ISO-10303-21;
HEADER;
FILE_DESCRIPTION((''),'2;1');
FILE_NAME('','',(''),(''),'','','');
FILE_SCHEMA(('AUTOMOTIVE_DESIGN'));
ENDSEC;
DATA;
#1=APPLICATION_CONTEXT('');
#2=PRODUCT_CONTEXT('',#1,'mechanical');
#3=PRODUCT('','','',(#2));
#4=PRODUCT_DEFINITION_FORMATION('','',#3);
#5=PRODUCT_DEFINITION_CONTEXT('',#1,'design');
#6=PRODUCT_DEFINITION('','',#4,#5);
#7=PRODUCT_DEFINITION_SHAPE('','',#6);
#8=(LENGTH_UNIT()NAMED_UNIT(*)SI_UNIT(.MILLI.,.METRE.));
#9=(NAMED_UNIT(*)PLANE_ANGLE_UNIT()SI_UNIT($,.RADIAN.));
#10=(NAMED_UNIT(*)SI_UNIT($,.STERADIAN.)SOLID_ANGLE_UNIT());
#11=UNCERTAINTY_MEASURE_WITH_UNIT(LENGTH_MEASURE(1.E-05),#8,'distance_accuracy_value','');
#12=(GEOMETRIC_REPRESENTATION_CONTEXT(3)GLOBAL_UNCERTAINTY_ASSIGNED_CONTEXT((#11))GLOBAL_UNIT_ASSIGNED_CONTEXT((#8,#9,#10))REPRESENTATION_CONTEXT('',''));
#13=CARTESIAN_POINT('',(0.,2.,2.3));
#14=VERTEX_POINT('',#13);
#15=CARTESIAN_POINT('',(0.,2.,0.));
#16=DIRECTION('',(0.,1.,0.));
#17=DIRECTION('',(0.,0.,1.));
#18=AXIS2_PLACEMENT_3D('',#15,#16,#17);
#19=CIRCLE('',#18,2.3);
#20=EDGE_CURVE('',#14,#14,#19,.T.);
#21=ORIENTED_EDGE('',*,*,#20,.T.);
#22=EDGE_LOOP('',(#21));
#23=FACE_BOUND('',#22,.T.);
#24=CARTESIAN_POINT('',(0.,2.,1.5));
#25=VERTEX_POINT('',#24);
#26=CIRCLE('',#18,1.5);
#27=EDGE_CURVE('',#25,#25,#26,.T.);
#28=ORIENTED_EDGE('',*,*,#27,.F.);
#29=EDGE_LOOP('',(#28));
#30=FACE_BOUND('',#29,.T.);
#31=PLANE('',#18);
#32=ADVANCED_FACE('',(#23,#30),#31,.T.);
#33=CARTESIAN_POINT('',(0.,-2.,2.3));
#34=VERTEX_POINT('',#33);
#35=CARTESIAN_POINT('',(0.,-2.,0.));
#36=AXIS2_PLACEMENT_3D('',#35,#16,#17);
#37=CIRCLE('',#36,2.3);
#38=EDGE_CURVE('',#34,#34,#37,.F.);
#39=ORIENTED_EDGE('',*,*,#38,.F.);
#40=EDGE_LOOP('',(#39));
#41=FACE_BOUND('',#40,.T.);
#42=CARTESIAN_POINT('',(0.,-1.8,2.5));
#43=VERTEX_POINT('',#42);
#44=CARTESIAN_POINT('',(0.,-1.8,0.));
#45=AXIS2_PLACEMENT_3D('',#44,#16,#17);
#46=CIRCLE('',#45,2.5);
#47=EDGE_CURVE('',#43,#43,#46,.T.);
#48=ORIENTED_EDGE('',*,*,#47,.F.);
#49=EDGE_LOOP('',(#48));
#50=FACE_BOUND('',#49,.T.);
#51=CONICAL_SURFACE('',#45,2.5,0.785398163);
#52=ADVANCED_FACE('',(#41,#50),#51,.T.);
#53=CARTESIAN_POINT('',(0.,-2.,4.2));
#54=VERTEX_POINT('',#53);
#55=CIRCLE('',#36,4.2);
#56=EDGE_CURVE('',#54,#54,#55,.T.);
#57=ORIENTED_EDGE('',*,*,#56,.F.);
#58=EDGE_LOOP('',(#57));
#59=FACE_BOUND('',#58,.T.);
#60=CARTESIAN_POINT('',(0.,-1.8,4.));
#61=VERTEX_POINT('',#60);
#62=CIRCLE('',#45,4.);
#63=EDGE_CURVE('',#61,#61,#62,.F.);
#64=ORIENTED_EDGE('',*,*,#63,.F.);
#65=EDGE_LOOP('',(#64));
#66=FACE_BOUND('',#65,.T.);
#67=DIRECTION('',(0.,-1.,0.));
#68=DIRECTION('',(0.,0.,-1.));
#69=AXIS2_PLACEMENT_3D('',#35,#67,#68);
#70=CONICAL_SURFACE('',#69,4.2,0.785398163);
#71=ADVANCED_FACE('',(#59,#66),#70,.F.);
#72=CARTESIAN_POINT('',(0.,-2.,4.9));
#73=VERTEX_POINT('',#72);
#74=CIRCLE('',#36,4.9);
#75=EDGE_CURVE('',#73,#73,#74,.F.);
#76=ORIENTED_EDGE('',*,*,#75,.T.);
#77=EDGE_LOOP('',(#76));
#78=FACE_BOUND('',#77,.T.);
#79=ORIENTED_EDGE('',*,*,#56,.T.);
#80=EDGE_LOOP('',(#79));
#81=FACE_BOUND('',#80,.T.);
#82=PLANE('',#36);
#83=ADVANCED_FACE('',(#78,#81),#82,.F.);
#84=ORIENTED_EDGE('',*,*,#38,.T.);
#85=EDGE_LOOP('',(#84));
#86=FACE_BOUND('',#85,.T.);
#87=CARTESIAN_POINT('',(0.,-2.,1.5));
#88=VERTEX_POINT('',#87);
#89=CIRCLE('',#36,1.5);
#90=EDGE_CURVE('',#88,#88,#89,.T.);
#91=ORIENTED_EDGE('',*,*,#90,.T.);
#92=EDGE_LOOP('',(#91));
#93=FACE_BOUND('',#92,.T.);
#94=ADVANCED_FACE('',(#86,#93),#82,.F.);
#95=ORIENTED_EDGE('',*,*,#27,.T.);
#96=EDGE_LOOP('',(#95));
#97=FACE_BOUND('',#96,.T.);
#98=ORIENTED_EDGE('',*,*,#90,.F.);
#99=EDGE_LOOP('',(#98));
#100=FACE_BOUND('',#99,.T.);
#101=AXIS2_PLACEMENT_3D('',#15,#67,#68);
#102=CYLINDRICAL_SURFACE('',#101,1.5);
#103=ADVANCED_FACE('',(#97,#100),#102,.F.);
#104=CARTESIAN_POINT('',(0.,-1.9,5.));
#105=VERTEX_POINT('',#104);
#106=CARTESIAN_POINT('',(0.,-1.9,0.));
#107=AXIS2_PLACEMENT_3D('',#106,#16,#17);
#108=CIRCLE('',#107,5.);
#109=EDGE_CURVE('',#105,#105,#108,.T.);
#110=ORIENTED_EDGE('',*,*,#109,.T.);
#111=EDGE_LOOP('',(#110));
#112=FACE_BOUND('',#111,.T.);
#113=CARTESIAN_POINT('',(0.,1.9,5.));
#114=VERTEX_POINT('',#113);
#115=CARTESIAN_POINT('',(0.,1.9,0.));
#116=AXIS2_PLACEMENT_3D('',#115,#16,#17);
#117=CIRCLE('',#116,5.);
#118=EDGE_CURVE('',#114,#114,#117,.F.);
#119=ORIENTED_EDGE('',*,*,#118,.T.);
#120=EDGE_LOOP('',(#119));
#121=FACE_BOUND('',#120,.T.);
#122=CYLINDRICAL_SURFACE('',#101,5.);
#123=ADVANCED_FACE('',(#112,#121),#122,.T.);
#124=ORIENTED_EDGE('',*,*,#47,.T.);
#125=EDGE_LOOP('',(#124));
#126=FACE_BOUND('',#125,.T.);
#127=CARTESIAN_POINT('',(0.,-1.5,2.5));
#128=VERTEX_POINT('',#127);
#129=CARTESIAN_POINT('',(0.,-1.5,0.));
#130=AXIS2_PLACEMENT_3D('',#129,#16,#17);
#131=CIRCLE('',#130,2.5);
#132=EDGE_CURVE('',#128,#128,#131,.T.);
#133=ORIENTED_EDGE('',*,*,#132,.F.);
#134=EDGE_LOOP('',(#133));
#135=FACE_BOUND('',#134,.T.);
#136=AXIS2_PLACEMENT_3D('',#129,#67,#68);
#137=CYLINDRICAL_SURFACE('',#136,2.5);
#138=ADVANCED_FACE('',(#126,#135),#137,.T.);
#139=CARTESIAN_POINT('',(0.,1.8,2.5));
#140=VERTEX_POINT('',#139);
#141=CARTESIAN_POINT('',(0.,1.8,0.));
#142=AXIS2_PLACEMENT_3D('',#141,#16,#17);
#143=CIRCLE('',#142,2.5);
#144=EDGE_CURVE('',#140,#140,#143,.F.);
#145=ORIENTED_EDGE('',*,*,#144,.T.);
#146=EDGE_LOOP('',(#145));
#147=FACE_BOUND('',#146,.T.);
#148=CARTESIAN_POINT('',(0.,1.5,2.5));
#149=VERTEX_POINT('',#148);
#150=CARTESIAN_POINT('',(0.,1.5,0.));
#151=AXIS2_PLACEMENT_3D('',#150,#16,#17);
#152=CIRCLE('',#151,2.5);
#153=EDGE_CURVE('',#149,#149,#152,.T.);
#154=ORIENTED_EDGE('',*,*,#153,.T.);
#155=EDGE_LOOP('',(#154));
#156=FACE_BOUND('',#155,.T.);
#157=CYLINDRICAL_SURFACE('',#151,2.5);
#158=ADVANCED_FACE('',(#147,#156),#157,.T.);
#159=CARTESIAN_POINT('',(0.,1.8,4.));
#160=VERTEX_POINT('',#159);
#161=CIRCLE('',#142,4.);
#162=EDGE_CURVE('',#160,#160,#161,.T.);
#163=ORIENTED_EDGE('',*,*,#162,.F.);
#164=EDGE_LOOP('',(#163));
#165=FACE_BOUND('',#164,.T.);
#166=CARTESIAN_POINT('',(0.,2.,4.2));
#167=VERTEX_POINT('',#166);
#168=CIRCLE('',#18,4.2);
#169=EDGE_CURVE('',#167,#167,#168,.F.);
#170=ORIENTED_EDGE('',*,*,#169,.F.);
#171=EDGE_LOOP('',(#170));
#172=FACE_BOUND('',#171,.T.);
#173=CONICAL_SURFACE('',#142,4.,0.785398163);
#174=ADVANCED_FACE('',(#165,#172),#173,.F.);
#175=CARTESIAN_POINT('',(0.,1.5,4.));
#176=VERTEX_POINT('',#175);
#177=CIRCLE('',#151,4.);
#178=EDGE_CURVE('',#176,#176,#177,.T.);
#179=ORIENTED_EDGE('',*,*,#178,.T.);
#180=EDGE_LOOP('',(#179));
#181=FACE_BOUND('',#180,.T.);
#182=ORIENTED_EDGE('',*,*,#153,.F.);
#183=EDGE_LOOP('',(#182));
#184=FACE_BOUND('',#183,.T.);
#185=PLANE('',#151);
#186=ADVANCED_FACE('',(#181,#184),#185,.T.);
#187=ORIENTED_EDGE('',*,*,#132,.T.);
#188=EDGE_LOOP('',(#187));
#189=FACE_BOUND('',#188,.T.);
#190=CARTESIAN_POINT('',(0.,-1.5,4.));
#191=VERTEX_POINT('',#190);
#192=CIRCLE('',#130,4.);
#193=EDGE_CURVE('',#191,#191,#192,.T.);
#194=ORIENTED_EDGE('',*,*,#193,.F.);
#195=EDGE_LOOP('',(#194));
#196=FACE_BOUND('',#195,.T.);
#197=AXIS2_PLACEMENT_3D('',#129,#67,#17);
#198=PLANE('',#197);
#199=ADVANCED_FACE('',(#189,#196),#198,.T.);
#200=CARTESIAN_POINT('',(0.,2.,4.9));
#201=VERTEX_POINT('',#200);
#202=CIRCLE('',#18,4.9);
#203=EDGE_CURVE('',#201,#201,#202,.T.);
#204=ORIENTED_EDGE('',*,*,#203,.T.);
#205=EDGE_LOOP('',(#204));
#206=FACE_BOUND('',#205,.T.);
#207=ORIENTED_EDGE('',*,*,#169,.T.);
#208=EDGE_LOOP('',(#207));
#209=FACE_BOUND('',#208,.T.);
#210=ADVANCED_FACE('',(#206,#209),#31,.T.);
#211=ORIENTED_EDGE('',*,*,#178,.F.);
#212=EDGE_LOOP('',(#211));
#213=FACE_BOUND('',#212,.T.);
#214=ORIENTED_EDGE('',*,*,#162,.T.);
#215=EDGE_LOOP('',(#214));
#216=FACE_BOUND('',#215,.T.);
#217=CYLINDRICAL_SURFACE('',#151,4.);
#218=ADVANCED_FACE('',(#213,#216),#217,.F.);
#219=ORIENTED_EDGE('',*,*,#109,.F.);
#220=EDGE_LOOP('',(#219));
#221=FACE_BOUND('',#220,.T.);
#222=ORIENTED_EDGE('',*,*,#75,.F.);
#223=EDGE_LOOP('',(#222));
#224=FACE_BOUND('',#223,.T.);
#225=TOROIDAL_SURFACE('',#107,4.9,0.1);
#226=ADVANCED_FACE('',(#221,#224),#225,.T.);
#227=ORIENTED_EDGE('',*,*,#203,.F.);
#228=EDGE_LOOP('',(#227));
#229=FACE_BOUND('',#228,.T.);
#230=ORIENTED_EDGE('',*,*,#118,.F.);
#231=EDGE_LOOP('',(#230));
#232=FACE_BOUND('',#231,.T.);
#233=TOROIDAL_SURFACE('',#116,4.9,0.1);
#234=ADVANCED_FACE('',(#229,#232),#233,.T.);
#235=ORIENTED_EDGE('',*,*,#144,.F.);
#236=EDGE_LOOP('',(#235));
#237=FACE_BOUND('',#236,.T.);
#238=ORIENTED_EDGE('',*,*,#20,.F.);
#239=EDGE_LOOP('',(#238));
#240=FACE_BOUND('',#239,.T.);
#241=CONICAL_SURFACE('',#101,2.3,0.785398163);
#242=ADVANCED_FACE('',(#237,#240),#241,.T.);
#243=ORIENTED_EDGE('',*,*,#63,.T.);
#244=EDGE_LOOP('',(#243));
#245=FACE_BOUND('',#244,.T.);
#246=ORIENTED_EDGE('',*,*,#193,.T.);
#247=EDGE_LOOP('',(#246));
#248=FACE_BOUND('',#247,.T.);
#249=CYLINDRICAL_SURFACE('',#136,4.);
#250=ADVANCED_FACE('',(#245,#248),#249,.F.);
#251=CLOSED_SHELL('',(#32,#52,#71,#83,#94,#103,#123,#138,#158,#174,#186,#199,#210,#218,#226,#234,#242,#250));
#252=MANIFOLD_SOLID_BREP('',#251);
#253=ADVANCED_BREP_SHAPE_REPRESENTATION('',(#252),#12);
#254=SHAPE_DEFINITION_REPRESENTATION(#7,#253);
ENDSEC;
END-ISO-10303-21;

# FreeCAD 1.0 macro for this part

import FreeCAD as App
import Part
import Sketcher
Q = App.Units.Quantity


def edges_at(feature, points):
    """Names of the edges that pass closest to the given points."""
    edges = feature.Shape.Edges
    near = lambda p: min(range(len(edges)), key=lambda i: edges[i].distToShape(Part.Vertex(*p))[0])
    return sorted({f"Edge{near(p) + 1}" for p in points})

doc = App.newDocument("Part")
body = doc.addObject("PartDesign::Body", "Body")

# Sketch on XZ plane
sketch1 = body.newObject("Sketcher::SketchObject", "Sketch")
sketch1.AttachmentSupport = (doc.getObject("XZ_Plane"), [""])
sketch1.MapMode = "FlatFace"
sketch1.addGeometry([
    Part.Circle(App.Vector(0, 0, 0), App.Vector(0, 0, 1), 5),
    Part.Circle(App.Vector(0, 0, 0), App.Vector(0, 0, 1), 1.5),
], False)
sketch1.addConstraint([
    Sketcher.Constraint("Coincident", 0, 3, -1, 1),
    Sketcher.Constraint("Coincident", 1, 3, -1, 1),
    Sketcher.Constraint("Diameter", 0, Q("10 mm")),
    Sketcher.Constraint("Diameter", 1, Q("3 mm")),
])
pad1 = body.newObject("PartDesign::Pad", "Pad")
pad1.Profile = sketch1
pad1.Length = 4
pad1.Midplane = True

# Sketch on XZ plane
sketch2 = body.newObject("Sketcher::SketchObject", "Sketch001")
sketch2.AttachmentSupport = (doc.getObject("XZ_Plane"), [""])
sketch2.MapMode = "FlatFace"
sketch2.AttachmentOffset = App.Placement(App.Vector(0, 0, -2), App.Rotation())
sketch2.addGeometry([
    Part.Circle(App.Vector(0, 0, 0), App.Vector(0, 0, 1), 4),
    Part.Circle(App.Vector(0, 0, 0), App.Vector(0, 0, 1), 2.5),
], False)
sketch2.addConstraint([
    Sketcher.Constraint("Coincident", 0, 3, -1, 1),
    Sketcher.Constraint("Coincident", 1, 3, -1, 1),
    Sketcher.Constraint("Diameter", 0, Q("8 mm")),
    Sketcher.Constraint("Diameter", 1, Q("5 mm")),
])
pocket1 = body.newObject("PartDesign::Pocket", "Pocket")
pocket1.Profile = sketch2
pocket1.Length = 0.5
pocket1.Reversed = True
doc.recompute()

mirrored = body.newObject("PartDesign::Mirrored", "Mirrored")
mirrored.Originals = [pocket1]
mirrored.MirrorPlane = (doc.getObject("XZ_Plane"), [""])
body.Tip = mirrored
doc.recompute()

chamfer = body.newObject("PartDesign::Chamfer", "Chamfer")
chamfer.Base = (mirrored, edges_at(mirrored, [
    (-4, 2, 0),
    (-2.5, 2, 0),
    (-2.5, -2, 0),
    (-4, -2, 0),
]))
chamfer.Size = 0.2
doc.recompute()

fillet = body.newObject("PartDesign::Fillet", "Fillet")
fillet.Base = (chamfer, edges_at(chamfer, [(-5, -2, 0), (-5, 2, 0)]))
fillet.Radius = 0.1

doc.recompute()
